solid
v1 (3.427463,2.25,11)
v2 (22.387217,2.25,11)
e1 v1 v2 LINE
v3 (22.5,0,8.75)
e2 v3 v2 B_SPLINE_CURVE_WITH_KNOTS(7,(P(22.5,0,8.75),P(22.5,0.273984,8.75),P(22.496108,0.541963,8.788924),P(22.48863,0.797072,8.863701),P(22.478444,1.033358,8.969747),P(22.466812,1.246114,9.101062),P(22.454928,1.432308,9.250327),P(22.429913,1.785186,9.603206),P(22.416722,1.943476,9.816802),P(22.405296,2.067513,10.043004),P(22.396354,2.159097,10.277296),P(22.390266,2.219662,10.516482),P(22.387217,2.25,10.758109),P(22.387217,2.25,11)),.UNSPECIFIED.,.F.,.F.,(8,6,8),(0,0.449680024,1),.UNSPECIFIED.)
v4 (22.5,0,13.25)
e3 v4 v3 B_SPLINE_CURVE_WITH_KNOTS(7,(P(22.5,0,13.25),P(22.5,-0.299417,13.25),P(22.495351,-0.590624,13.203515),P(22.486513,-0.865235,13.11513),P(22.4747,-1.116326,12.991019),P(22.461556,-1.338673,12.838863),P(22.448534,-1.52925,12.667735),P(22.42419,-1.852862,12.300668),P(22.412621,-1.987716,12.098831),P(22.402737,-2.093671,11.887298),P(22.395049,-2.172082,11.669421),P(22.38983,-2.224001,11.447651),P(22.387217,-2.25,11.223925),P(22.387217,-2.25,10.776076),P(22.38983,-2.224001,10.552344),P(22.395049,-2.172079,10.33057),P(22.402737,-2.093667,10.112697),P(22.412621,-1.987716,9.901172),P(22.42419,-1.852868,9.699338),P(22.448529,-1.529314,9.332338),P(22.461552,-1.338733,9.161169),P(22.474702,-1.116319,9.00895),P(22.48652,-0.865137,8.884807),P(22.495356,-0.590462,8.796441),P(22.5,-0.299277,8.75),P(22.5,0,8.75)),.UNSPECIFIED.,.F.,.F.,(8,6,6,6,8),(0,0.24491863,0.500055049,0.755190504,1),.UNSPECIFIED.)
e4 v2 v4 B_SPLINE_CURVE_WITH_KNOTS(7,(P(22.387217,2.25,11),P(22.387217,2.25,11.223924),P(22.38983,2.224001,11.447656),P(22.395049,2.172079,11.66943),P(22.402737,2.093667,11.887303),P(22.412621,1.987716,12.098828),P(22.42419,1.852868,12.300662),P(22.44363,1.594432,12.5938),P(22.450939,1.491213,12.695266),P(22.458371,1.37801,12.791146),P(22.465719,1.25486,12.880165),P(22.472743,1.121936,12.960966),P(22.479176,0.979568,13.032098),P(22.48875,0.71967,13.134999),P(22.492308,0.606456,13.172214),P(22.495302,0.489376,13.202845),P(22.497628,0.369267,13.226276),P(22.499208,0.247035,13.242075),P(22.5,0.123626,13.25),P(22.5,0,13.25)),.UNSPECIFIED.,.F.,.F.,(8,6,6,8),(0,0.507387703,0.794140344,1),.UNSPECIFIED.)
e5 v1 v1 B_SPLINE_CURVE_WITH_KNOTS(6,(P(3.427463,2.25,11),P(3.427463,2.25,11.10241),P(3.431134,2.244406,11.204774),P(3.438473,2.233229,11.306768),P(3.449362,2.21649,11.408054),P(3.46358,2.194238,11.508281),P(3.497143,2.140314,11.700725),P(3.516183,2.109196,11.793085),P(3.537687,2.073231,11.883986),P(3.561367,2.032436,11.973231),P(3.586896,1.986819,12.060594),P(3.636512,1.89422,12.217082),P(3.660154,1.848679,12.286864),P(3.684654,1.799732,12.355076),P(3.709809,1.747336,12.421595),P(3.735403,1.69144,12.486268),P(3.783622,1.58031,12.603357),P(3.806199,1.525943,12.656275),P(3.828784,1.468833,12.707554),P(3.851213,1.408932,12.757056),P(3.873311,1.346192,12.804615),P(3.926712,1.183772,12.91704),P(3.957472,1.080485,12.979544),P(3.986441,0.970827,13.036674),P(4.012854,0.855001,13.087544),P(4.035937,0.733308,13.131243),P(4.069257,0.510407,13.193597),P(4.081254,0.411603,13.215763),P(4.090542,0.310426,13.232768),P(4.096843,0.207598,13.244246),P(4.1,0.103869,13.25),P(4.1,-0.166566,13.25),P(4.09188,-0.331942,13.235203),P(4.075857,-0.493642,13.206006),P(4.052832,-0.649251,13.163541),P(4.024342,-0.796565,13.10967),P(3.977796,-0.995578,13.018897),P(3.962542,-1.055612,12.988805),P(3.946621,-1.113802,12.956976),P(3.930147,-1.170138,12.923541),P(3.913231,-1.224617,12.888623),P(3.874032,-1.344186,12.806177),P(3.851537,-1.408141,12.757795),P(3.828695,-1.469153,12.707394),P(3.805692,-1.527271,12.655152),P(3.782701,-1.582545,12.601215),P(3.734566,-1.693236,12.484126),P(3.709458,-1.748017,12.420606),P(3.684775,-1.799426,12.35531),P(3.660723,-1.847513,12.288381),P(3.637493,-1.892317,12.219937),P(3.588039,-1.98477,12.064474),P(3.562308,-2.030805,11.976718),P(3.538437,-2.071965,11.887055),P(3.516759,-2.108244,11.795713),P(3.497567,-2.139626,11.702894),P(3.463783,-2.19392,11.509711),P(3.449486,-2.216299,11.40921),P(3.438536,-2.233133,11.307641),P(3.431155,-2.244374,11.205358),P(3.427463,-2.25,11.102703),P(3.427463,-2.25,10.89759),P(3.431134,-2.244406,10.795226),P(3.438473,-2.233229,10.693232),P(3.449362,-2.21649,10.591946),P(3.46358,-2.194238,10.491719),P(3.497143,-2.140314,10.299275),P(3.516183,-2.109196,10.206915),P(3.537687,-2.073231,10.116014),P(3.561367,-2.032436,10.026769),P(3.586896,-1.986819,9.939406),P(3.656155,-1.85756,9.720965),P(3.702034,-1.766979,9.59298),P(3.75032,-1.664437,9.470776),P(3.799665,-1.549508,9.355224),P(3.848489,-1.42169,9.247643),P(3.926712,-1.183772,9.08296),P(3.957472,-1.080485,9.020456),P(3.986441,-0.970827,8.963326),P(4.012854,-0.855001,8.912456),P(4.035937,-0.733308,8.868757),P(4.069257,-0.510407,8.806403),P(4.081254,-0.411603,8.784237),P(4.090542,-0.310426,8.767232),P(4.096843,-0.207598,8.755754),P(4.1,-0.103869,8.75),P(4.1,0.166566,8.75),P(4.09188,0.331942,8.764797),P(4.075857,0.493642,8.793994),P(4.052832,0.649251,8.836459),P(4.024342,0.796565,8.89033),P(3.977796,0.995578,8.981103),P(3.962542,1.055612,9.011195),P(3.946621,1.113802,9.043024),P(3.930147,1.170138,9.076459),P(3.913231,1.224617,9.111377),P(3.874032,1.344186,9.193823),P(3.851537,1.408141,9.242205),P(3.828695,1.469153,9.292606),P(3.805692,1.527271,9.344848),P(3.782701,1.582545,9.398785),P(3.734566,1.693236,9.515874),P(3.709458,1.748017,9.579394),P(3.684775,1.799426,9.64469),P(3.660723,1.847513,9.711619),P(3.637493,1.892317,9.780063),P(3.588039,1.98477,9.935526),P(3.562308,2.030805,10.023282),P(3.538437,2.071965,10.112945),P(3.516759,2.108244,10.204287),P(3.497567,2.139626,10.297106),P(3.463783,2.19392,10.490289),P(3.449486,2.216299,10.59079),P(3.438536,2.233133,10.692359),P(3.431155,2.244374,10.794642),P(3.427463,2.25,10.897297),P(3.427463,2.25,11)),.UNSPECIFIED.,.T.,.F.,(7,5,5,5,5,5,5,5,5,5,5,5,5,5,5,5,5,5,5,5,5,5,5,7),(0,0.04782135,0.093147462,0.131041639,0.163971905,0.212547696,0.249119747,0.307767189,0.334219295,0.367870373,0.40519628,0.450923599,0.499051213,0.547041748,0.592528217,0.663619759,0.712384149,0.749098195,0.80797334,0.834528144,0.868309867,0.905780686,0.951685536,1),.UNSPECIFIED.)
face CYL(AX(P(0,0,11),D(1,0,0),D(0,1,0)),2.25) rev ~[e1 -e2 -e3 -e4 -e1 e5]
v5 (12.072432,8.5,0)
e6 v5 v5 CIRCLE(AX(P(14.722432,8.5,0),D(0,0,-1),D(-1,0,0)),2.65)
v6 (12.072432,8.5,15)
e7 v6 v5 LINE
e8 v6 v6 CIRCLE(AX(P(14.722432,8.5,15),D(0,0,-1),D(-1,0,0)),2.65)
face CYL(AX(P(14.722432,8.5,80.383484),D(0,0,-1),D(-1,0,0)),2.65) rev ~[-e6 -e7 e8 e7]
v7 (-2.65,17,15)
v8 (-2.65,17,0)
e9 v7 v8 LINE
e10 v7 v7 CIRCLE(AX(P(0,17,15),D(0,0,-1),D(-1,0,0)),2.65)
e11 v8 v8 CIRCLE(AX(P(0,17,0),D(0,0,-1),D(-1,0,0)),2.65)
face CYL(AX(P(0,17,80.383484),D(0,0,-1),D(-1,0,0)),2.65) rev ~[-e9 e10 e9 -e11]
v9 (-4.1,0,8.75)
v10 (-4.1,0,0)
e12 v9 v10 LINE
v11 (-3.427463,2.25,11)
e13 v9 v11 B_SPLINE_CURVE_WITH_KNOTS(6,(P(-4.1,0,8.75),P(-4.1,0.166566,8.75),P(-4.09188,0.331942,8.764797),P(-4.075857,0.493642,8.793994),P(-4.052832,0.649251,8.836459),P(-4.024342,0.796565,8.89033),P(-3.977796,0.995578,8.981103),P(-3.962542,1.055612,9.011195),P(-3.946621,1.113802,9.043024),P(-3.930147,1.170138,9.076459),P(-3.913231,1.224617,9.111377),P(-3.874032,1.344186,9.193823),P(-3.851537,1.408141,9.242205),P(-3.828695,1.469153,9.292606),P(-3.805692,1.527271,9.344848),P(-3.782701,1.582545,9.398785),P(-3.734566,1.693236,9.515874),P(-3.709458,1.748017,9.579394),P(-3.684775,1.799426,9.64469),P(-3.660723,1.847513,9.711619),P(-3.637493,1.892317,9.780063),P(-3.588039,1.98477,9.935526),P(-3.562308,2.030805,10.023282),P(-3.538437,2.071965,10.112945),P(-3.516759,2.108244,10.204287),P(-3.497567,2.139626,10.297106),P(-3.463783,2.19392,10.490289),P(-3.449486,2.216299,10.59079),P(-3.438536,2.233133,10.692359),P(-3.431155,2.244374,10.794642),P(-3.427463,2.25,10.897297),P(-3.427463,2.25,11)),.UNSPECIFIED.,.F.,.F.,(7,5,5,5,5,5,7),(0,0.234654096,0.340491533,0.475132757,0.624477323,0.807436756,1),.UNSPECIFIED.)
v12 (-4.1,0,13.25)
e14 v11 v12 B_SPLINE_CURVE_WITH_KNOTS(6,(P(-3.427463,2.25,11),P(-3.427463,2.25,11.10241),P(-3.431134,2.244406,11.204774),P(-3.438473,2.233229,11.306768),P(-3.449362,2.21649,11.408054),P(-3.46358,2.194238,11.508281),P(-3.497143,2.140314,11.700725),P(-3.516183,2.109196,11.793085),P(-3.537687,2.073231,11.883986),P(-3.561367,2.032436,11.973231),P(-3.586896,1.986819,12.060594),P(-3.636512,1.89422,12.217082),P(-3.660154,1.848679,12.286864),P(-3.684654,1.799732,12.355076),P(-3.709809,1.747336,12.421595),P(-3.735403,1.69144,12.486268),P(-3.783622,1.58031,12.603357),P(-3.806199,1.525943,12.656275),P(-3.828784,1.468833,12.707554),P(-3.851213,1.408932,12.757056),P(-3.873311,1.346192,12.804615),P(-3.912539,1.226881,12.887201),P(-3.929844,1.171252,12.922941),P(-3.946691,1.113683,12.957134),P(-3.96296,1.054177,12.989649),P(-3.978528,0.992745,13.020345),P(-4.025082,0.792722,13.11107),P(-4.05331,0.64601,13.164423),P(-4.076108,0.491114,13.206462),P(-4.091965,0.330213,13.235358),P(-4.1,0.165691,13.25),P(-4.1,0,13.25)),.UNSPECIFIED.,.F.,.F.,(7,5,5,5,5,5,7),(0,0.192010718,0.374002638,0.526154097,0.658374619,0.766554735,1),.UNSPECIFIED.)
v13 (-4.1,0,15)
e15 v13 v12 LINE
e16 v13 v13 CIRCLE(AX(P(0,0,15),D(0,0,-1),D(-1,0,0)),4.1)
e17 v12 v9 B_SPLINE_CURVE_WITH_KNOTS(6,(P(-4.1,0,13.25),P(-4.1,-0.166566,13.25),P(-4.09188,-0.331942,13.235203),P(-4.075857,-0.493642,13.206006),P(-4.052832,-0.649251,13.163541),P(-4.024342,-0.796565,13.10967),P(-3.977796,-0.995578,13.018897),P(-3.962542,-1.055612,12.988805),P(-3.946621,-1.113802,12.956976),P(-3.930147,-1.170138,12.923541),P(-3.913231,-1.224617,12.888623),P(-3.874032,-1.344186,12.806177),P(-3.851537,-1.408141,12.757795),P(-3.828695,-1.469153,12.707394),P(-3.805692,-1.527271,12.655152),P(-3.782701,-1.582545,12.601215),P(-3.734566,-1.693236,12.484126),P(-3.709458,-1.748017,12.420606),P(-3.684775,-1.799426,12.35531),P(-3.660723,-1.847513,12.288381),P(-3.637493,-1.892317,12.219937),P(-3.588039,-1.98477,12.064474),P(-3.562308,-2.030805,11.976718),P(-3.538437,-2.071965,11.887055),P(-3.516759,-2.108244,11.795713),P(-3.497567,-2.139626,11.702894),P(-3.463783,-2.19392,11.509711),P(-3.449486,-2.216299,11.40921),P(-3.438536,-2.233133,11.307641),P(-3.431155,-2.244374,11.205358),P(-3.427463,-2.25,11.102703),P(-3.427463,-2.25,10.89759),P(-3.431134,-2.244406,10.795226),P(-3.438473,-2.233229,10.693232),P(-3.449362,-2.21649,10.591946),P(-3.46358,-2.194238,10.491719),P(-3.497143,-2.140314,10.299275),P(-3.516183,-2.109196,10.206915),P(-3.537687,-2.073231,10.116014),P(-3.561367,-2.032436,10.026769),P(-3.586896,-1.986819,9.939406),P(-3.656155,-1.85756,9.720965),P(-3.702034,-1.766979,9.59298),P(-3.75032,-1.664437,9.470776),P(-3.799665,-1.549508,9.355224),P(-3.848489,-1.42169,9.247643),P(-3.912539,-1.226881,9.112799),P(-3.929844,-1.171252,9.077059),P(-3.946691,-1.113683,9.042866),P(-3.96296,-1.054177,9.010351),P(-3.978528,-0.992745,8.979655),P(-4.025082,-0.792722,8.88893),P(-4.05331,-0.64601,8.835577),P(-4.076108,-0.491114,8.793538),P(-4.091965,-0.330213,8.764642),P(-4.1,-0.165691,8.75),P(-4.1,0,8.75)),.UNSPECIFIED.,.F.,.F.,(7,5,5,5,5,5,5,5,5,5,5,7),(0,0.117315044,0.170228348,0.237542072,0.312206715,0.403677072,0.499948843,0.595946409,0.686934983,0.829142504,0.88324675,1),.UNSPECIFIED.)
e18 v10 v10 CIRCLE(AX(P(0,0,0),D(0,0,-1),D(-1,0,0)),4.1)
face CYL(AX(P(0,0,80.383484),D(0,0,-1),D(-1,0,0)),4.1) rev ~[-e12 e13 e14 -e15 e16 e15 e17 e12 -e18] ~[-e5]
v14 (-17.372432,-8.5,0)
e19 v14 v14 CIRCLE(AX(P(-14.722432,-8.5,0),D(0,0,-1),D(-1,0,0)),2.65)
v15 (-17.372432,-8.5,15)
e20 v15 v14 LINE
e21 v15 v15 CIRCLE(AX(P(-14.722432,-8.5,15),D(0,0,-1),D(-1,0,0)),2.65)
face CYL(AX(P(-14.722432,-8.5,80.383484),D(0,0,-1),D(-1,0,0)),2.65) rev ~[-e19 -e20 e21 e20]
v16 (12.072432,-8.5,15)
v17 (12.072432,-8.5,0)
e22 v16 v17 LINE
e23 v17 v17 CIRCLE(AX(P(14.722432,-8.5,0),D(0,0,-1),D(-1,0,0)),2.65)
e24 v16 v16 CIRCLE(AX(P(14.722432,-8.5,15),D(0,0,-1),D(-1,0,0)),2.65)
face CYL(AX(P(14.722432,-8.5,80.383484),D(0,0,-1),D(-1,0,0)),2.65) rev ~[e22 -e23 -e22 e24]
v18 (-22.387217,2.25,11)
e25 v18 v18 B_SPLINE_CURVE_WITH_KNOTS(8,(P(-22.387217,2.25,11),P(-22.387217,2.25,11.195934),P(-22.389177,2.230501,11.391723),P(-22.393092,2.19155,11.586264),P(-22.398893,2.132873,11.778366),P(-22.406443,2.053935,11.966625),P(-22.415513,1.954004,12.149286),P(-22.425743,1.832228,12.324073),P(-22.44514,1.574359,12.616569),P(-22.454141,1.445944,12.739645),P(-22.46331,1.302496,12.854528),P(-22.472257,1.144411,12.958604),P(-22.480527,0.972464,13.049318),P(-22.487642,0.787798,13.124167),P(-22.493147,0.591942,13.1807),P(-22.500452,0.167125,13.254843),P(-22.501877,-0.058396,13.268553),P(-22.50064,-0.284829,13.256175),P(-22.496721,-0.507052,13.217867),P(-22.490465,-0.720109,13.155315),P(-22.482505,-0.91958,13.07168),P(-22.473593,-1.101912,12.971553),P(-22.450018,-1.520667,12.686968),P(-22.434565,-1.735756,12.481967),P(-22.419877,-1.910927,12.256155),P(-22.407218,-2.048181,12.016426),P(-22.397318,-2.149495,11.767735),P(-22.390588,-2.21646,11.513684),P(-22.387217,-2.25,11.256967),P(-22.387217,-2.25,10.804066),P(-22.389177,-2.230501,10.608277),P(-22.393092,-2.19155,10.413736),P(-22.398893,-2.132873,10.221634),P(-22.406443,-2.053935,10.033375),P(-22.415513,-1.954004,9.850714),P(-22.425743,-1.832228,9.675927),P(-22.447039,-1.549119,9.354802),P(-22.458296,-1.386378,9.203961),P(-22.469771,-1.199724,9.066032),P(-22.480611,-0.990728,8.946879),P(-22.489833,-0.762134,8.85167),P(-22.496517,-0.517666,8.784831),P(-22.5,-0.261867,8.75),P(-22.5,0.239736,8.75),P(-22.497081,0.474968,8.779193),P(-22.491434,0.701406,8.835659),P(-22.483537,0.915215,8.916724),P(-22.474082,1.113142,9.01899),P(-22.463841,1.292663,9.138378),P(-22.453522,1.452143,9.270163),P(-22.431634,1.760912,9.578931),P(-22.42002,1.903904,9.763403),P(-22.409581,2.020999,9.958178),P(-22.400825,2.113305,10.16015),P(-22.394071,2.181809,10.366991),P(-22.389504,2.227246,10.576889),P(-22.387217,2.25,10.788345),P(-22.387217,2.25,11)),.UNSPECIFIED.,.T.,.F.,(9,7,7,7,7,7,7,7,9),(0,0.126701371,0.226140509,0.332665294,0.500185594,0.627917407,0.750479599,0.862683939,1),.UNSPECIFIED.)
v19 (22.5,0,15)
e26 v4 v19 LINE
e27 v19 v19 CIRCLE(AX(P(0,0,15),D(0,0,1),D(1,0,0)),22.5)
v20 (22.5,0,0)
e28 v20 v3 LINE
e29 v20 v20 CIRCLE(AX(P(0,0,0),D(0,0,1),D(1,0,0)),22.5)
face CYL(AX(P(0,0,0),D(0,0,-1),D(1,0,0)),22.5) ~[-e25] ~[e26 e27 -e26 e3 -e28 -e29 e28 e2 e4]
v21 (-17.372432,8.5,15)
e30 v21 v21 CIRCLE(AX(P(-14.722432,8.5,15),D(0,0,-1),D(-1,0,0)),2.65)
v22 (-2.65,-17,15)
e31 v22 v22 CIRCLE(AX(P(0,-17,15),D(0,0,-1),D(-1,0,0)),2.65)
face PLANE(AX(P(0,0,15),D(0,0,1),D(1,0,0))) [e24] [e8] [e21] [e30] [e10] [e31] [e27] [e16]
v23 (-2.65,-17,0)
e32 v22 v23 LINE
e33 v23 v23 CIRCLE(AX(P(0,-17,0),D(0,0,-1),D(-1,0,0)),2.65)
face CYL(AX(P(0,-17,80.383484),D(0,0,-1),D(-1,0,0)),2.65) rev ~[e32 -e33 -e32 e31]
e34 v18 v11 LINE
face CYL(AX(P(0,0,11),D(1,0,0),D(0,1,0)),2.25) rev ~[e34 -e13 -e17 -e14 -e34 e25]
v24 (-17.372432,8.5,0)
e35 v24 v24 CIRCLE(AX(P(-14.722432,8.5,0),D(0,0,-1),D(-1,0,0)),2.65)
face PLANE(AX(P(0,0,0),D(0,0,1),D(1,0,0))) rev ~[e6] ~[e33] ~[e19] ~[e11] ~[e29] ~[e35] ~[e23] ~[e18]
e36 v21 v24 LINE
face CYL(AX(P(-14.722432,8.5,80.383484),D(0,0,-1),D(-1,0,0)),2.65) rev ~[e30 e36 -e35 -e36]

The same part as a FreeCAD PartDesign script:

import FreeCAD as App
import Part
import Sketcher
from FreeCAD import Vector
Q = App.Units.Quantity

doc = App.newDocument("Part")
body = doc.addObject("PartDesign::Body", "Body")

# Sketch on XY plane
sketch1 = doc.addObject("Sketcher::SketchObject", "Sketch")
body.addObject(sketch1)
sketch1.AttachmentSupport = (doc.XY_Plane, [""])
sketch1.MapMode = "FlatFace"
sketch1.addGeometry(Part.Circle(Vector(0, 0, 0), Vector(0, 0, 1), 22), False)
sketch1.addConstraint([
    Sketcher.Constraint("Coincident", 0, 3, -1, 1),
    Sketcher.Constraint("Diameter", 0, Q("45 mm")),
])
pad1 = doc.addObject("PartDesign::Pad", "Pad")
body.addObject(pad1)
pad1.Profile = sketch1
pad1.Length = 15

# Sketch on XY plane
sketch2 = doc.addObject("Sketcher::SketchObject", "Sketch001")
body.addObject(sketch2)
sketch2.AttachmentSupport = (doc.XY_Plane, [""])
sketch2.MapMode = "FlatFace"
sketch2.AttachmentOffset = App.Placement(Vector(0, 0, 15), App.Rotation())
sketch2.addGeometry(Part.Circle(Vector(0, 0, 0), Vector(0, 0, 1), 4.1), False)
sketch2.addConstraint([
    Sketcher.Constraint("Coincident", 0, 3, -1, 1),
    Sketcher.Constraint("Diameter", 0, Q("8.2 mm")),
])
doc.recompute()
hole = doc.addObject("PartDesign::Hole", "Hole")
body.addObject(hole)
hole.Profile = sketch2
hole.ThreadType = "None"
hole.Diameter = 8.2
hole.DepthType = "ThroughAll"

# Sketch on XY plane
sketch3 = doc.addObject("Sketcher::SketchObject", "Sketch002")
body.addObject(sketch3)
sketch3.AttachmentSupport = (doc.XY_Plane, [""])
sketch3.MapMode = "FlatFace"
sketch3.AttachmentOffset = App.Placement(Vector(0, 0, 15), App.Rotation())
sketch3.addGeometry([
    Part.Circle(Vector(0, 17, 0), Vector(0, 0, 1), 2.6),  # 0
    Part.Circle(Vector(14.7, 8.5, 0), Vector(0, 0, 1), 2.6),  # 1
    Part.Circle(Vector(14.7, -8.5, 0), Vector(0, 0, 1), 2.6),  # 2
    Part.Circle(Vector(0, -17, 0), Vector(0, 0, 1), 2.6),  # 3
    Part.Circle(Vector(-14.7, -8.5, 0), Vector(0, 0, 1), 2.6),  # 4
    Part.Circle(Vector(-14.7, 8.5, 0), Vector(0, 0, 1), 2.6),  # 5
], False)
sketch3.addConstraint([
    Sketcher.Constraint("Equal", 0, 1),
    Sketcher.Constraint("Equal", 1, 2),
    Sketcher.Constraint("Equal", 2, 3),
    Sketcher.Constraint("Equal", 3, 4),
    Sketcher.Constraint("Equal", 4, 5),
    Sketcher.Constraint("Symmetric", 0, 3, 3, 3, -1, 1),
    Sketcher.Constraint("Symmetric", 1, 3, 4, 3, -1, 1),
    Sketcher.Constraint("Symmetric", 2, 3, 5, 3, -1, 1),
    Sketcher.Constraint("Symmetric", 2, 3, 4, 3, -2),
    Sketcher.Constraint("PointOnObject", 0, 3, -2),
    Sketcher.Constraint("Diameter", 0, Q("5.3 mm")),
    Sketcher.Constraint("DistanceY", -1, 1, 0, 3, Q("17 mm")),
    Sketcher.Constraint("DistanceY", 2, 3, 1, 3, Q("17 mm")),
    Sketcher.Constraint("DistanceX", -1, 1, 1, 3, Q("14.722432 mm")),
])
doc.recompute()
hole2 = doc.addObject("PartDesign::Hole", "Hole001")
body.addObject(hole2)
hole2.Profile = sketch3
hole2.ThreadType = "None"
hole2.Diameter = 5.3
hole2.DepthType = "ThroughAll"

# Sketch on YZ plane
sketch4 = doc.addObject("Sketcher::SketchObject", "Sketch003")
body.addObject(sketch4)
sketch4.AttachmentSupport = (doc.YZ_Plane, [""])
sketch4.MapMode = "FlatFace"
sketch4.addGeometry(Part.Circle(Vector(0, 11, 0), Vector(0, 0, 1), 2.2), False)
sketch4.addConstraint([
    Sketcher.Constraint("PointOnObject", 0, 3, -2),
    Sketcher.Constraint("Diameter", 0, Q("4.5 mm")),
    Sketcher.Constraint("DistanceY", -1, 1, 0, 3, Q("11 mm")),
])
pocket1 = doc.addObject("PartDesign::Pocket", "Pocket")
body.addObject(pocket1)
pocket1.Profile = sketch4
pocket1.Length = 100
pocket1.Midplane = True

doc.recompute()
